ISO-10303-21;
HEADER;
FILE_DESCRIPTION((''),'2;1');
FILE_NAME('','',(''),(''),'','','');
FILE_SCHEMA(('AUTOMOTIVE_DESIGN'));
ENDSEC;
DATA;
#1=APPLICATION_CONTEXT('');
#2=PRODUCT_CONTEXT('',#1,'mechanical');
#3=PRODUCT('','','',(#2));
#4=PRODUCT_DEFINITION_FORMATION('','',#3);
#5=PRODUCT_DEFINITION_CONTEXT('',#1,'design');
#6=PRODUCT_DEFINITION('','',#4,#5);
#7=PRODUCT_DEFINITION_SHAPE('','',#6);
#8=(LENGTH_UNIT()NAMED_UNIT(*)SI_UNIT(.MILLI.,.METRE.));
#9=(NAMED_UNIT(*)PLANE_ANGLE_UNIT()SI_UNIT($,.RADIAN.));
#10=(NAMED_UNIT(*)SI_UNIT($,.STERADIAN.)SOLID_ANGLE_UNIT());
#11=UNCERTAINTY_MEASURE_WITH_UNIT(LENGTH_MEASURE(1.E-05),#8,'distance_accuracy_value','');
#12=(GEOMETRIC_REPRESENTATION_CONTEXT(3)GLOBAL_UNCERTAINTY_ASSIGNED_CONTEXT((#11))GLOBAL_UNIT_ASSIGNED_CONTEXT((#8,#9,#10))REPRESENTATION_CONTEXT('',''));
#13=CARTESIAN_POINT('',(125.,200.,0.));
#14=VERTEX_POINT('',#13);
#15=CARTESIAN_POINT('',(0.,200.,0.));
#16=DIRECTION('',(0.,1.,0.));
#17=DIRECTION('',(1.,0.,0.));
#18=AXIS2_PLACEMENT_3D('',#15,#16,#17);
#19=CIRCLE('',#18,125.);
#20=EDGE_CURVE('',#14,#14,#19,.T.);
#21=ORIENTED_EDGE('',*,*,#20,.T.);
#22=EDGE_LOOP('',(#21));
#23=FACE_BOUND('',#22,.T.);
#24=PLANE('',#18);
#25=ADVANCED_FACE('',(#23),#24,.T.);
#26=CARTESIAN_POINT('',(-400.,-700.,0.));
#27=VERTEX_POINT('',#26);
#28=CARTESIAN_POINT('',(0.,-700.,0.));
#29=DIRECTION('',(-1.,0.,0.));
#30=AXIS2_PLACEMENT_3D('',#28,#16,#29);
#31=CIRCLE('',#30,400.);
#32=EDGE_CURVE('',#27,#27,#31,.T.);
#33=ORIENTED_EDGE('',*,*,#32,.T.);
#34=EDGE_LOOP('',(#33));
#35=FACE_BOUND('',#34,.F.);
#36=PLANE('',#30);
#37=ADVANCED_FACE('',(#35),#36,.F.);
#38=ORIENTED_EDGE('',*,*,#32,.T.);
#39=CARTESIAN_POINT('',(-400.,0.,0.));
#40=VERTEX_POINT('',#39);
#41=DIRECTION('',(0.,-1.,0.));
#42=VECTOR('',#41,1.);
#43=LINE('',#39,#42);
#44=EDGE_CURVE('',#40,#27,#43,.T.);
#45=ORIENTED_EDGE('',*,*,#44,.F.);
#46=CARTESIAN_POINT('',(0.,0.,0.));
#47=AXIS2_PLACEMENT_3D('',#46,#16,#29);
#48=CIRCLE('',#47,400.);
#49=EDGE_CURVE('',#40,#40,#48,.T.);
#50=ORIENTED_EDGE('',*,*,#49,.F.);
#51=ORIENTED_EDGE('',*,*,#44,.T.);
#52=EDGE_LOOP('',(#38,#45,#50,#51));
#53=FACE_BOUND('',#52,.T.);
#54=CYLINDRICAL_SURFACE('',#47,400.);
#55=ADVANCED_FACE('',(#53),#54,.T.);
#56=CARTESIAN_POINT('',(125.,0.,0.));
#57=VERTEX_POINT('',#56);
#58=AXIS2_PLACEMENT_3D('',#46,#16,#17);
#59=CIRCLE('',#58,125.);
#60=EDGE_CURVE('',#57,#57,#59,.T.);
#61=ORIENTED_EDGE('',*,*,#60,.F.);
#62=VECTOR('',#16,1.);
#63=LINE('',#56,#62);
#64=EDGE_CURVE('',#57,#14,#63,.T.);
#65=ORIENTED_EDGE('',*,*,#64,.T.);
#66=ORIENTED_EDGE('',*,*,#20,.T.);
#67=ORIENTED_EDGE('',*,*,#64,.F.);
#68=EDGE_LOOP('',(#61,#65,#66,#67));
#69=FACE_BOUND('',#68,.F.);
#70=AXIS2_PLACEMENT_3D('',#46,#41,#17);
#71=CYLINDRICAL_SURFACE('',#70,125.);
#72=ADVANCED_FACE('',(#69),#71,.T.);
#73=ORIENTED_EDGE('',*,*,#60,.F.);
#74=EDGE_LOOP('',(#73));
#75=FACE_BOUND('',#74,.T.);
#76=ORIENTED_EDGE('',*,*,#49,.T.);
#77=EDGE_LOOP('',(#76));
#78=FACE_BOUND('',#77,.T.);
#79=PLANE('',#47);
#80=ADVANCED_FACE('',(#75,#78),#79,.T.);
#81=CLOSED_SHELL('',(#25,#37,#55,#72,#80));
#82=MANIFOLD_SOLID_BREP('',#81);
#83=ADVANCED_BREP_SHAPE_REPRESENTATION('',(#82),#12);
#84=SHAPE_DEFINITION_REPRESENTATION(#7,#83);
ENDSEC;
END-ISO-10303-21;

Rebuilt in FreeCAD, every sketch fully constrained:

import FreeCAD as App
import Part
import Sketcher

V = App.Vector
Q = App.Units.Quantity

doc = App.newDocument("Part")
body = doc.addObject("PartDesign::Body", "Body")

sketch1 = body.newObject("Sketcher::SketchObject", "Sketch")
sketch1.AttachmentSupport = (doc.getObject("XZ_Plane"), [""])
sketch1.MapMode = "FlatFace"
sketch1.addGeometry(Part.Circle(V(0, 0, 0), V(0, 0, 1), 400), False)
sketch1.addConstraint(Sketcher.Constraint("Coincident", 0, 3, -1, 1))
sketch1.addConstraint(Sketcher.Constraint("Diameter", 0, Q("800 mm")))
pad1 = body.newObject("PartDesign::Pad", "Pad")
pad1.Profile = sketch1
pad1.Length = 700

sketch2 = body.newObject("Sketcher::SketchObject", "Sketch001")
sketch2.AttachmentSupport = (doc.getObject("XZ_Plane"), [""])
sketch2.MapMode = "FlatFace"
sketch2.addGeometry(Part.Circle(V(0, 0, 0), V(0, 0, 1), 125), False)
sketch2.addConstraint(Sketcher.Constraint("Coincident", 0, 3, -1, 1))
sketch2.addConstraint(Sketcher.Constraint("Diameter", 0, Q("250 mm")))
pad2 = body.newObject("PartDesign::Pad", "Pad001")
pad2.Profile = sketch2
pad2.Length = 200
pad2.Reversed = True

doc.recompute()
